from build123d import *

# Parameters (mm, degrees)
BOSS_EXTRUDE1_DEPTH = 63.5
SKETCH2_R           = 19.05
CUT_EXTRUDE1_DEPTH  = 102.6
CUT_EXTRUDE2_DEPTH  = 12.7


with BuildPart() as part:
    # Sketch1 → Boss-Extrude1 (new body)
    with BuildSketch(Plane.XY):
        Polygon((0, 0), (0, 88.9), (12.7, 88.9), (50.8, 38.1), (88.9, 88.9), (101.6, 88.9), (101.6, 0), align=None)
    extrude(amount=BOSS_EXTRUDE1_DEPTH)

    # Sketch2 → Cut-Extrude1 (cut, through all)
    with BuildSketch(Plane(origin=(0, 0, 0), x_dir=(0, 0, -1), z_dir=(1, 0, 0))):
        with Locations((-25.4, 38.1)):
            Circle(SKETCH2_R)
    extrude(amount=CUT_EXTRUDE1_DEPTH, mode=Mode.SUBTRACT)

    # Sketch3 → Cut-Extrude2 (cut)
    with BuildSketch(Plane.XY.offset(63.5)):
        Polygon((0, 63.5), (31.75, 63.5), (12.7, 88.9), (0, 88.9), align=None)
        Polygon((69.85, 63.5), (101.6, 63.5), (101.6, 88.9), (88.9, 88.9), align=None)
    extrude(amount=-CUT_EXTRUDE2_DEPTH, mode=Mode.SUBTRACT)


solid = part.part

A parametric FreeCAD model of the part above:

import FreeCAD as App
import Part
import Sketcher

V = App.Vector
Q = App.Units.Quantity


def add_polygon(sketch, points):
    """Adds a closed chain of lines whose ends are joined by coincident constraints."""
    first, n = sketch.GeometryCount, len(points)
    for a, b in zip(points, points[1:] + points[:1]):
        sketch.addGeometry(Part.LineSegment(App.Vector(*a, 0), App.Vector(*b, 0)), False)
    for i in range(n):
        sketch.addConstraint(Sketcher.Constraint("Coincident", first + i, 2, first + (i + 1) % n, 1))

doc = App.newDocument("Part")
params = doc.addObject("Spreadsheet::Sheet", "Params")
for row, (alias, value) in enumerate([
    ("sketch1_width", "4 in"),
    ("sketch1_width2", "0.5 in"),
    ("sketch1_height", "3.5 in"),
    ("pad1_length", "2.5 in"),
    ("sketch2_diameter", "1.5 in"),
    ("sketch3_height", "1 in"),
    ("sketch3_width", "0.5 in"),
    ("sketch3_width2", "1.25 in"),
    ("pocket2_length", "0.5 in"),
], start=1):
    params.set(f"A{row}", alias)
    params.set(f"B{row}", "=" + value)
    params.setAlias(f"B{row}", alias)

body = doc.addObject("PartDesign::Body", "Body")

# Sketch on XY plane
sketch1 = body.newObject("Sketcher::SketchObject", "Sketch")
sketch1.AttachmentSupport = (doc.getObject("XY_Plane"), [""])
sketch1.MapMode = "FlatFace"
add_polygon(sketch1, [(0, 88.9), (0, 0), (101.6, 0), (101.6, 88.9), (88.9, 88.9), (50.8, 38.1), (12.7, 88.9)])  # lines 0-6
sketch1.addConstraint(Sketcher.Constraint("Vertical", 0))
sketch1.addConstraint(Sketcher.Constraint("Horizontal", 1))
sketch1.addConstraint(Sketcher.Constraint("Vertical", 2))
sketch1.addConstraint(Sketcher.Constraint("Horizontal", 3))
sketch1.addConstraint(Sketcher.Constraint("Horizontal", 6))
sketch1.addConstraint(Sketcher.Constraint("Coincident", 0, 2, -1, 1))
sketch1.addConstraint(Sketcher.Constraint("Horizontal", 3, 2, 5, 2))
sketch1.addConstraint(Sketcher.Constraint("Equal", 3, 6))
sketch1.addConstraint(Sketcher.Constraint("Equal", 4, 5))
sketch1.addConstraint(Sketcher.Constraint("DistanceX", 1, 1, 1, 2, Q("4 in")))
sketch1.addConstraint(Sketcher.Constraint("DistanceX", 3, 2, 3, 1, Q("0.5 in")))
sketch1.addConstraint(Sketcher.Constraint("DistanceY", 0, 2, 0, 1, Q("3.5 in")))
sketch1.addConstraint(Sketcher.Constraint("DistanceY", 4, 2, 3, 2, Q("2 in")))
sketch1.setExpression("Constraints[16]", "Params.sketch1_width")
sketch1.setExpression("Constraints[17]", "Params.sketch1_width2")
sketch1.setExpression("Constraints[18]", "Params.sketch1_height")
pad1 = body.newObject("PartDesign::Pad", "Pad")
pad1.Profile = sketch1
pad1.setExpression("Length", "Params.pad1_length")

# Sketch on YZ plane
sketch2 = body.newObject("Sketcher::SketchObject", "Sketch001")
sketch2.AttachmentSupport = (doc.getObject("YZ_Plane"), [""])
sketch2.MapMode = "FlatFace"
sketch2.addGeometry(Part.Circle(V(38.1, 25.4, 0), V(0, 0, 1), 19.05), False)
sketch2.addConstraint(Sketcher.Constraint("Diameter", 0, Q("1.5 in")))
sketch2.addConstraint(Sketcher.Constraint("DistanceY", -1, 1, 0, 3, Q("1 in")))
sketch2.addConstraint(Sketcher.Constraint("DistanceX", -1, 1, 0, 3, Q("1.5 in")))
sketch2.setExpression("Constraints[0]", "Params.sketch2_diameter")
pocket1 = body.newObject("PartDesign::Pocket", "Pocket")
pocket1.Profile = sketch2
pocket1.Type = "ThroughAll"
pocket1.Reversed = True

# Sketch on XY plane
sketch3 = body.newObject("Sketcher::SketchObject", "Sketch002")
sketch3.AttachmentSupport = (doc.getObject("XY_Plane"), [""])
sketch3.MapMode = "FlatFace"
sketch3.AttachmentOffset = App.Placement(V(0, 0, 2.5 * 25.4), App.Rotation())
add_polygon(sketch3, [(0, 63.5), (31.75, 63.5), (12.7, 88.9), (0, 88.9)])  # lines 0-3
add_polygon(sketch3, [(69.85, 63.5), (101.6, 63.5), (101.6, 88.9), (88.9, 88.9)])  # lines 4-7
sketch3.addConstraint(Sketcher.Constraint("Horizontal", 0))
sketch3.addConstraint(Sketcher.Constraint("Horizontal", 2))
sketch3.addConstraint(Sketcher.Constraint("Vertical", 3))
sketch3.addConstraint(Sketcher.Constraint("Horizontal", 4))
sketch3.addConstraint(Sketcher.Constraint("Vertical", 5))
sketch3.addConstraint(Sketcher.Constraint("Horizontal", 6))
sketch3.addConstraint(Sketcher.Constraint("PointOnObject", 2, 2, -2))
sketch3.addConstraint(Sketcher.Constraint("Horizontal", 3, 2, 4, 2))
sketch3.addConstraint(Sketcher.Constraint("Horizontal", 2, 2, 5, 2))
sketch3.addConstraint(Sketcher.Constraint("Equal", 0, 4))
sketch3.addConstraint(Sketcher.Constraint("Equal", 2, 6))
sketch3.addConstraint(Sketcher.Constraint("DistanceY", 3, 2, 3, 1, Q("1 in")))
sketch3.addConstraint(Sketcher.Constraint("DistanceX", 2, 2, 2, 1, Q("0.5 in")))
sketch3.addConstraint(Sketcher.Constraint("DistanceX", -1, 1, 4, 2, Q("4 in")))
sketch3.addConstraint(Sketcher.Constraint("DistanceX", 0, 1, 0, 2, Q("1.25 in")))
sketch3.addConstraint(Sketcher.Constraint("DistanceY", -1, 1, 0, 2, Q("2.5 in")))
sketch3.setExpression("Constraints[19]", "Params.sketch3_height")
sketch3.setExpression("Constraints[20]", "Params.sketch3_width")
sketch3.setExpression("Constraints[22]", "Params.sketch3_width2")
pocket2 = body.newObject("PartDesign::Pocket", "Pocket001")
pocket2.Profile = sketch3
pocket2.setExpression("Length", "Params.pocket2_length")

doc.recompute()
